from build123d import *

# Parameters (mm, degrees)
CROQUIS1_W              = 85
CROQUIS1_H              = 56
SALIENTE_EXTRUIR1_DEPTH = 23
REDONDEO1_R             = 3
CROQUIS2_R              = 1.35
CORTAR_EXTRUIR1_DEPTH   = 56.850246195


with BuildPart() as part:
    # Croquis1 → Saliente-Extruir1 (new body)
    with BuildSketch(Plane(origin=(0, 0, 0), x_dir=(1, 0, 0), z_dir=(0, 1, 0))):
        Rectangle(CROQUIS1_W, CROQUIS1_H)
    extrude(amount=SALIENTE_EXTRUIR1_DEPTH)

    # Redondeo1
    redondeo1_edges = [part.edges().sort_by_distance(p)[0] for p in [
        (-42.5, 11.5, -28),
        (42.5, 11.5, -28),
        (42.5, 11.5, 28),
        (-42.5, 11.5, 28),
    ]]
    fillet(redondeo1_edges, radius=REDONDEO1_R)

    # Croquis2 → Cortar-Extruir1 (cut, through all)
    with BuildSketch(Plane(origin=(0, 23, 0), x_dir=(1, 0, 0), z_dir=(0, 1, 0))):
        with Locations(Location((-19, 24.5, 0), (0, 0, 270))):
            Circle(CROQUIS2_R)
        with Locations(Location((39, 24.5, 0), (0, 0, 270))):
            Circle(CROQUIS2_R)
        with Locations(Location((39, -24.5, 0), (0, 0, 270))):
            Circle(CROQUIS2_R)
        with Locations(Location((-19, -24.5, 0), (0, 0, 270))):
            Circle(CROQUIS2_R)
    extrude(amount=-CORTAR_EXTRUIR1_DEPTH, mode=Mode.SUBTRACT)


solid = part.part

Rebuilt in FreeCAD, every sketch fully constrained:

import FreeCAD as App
import Part
import Sketcher


def edges_at(feature, points):
    """Names of the edges that pass closest to the given points."""
    edges = feature.Shape.Edges
    near = lambda p: min(range(len(edges)), key=lambda i: edges[i].distToShape(Part.Vertex(*p))[0])
    return sorted({f"Edge{near(p) + 1}" for p in points})

doc = App.newDocument("Part")
body = doc.addObject("PartDesign::Body", "Body")

sketch1 = body.newObject("Sketcher::SketchObject", "Sketch")
sketch1.AttachmentSupport = (doc.getObject("XZ_Plane"), [""])
sketch1.MapMode = "FlatFace"
sketch1.addGeometry(Part.LineSegment(App.Vector(-42, -28, 0), App.Vector(-42, 28, 0)), False)
sketch1.addGeometry(Part.LineSegment(App.Vector(-42, 28, 0), App.Vector(42, 28, 0)), False)
sketch1.addGeometry(Part.LineSegment(App.Vector(42, 28, 0), App.Vector(42, -28, 0)), False)
sketch1.addGeometry(Part.LineSegment(App.Vector(42, -28, 0), App.Vector(-42, -28, 0)), False)
sketch1.addConstraint(Sketcher.Constraint("Coincident", 0, 2, 1, 1))
sketch1.addConstraint(Sketcher.Constraint("Coincident", 1, 2, 2, 1))
sketch1.addConstraint(Sketcher.Constraint("Coincident", 2, 2, 3, 1))
sketch1.addConstraint(Sketcher.Constraint("Coincident", 3, 2, 0, 1))
sketch1.addConstraint(Sketcher.Constraint("Vertical", 0))
sketch1.addConstraint(Sketcher.Constraint("Horizontal", 1))
sketch1.addConstraint(Sketcher.Constraint("Vertical", 2))
sketch1.addConstraint(Sketcher.Constraint("Horizontal", 3))
sketch1.addConstraint(Sketcher.Constraint("Symmetric", 0, 2, 2, 2, -1, 1))
sketch1.addConstraint(Sketcher.Constraint("DistanceX", 1, 1, 1, 2, 85.0))
sketch1.addConstraint(Sketcher.Constraint("DistanceY", 0, 1, 0, 2, 56.0))
pad1 = body.newObject("PartDesign::Pad", "Pad")
pad1.Profile = sketch1
pad1.Length = 23
pad1.Reversed = True
doc.recompute()

fillet = body.newObject("PartDesign::Fillet", "Fillet")
fillet.Base = (pad1, edges_at(pad1, [
    (-42.5, 11.5, -28),
    (42.5, 11.5, -28),
    (42.5, 11.5, 28),
    (-42.5, 11.5, 28),
]))
fillet.Radius = 3

sketch2 = body.newObject("Sketcher::SketchObject", "Sketch001")
sketch2.AttachmentSupport = (doc.getObject("XZ_Plane"), [""])
sketch2.MapMode = "FlatFace"
sketch2.AttachmentOffset = App.Placement(App.Vector(0, 0, -23), App.Rotation())
sketch2.addGeometry(Part.Circle(App.Vector(-19, -24.5, 0), App.Vector(0, 0, 1), 1.4), False)
sketch2.addGeometry(Part.Circle(App.Vector(39, -24.5, 0), App.Vector(0, 0, 1), 1.4), False)
sketch2.addGeometry(Part.Circle(App.Vector(39, 24.5, 0), App.Vector(0, 0, 1), 1.4), False)
sketch2.addGeometry(Part.Circle(App.Vector(-19, 24.5, 0), App.Vector(0, 0, 1), 1.4), False)
sketch2.addConstraint(Sketcher.Constraint("Equal", 0, 1))
sketch2.addConstraint(Sketcher.Constraint("Equal", 1, 2))
sketch2.addConstraint(Sketcher.Constraint("Equal", 2, 3))
sketch2.addConstraint(Sketcher.Constraint("Symmetric", 1, 3, 2, 3, -1))
sketch2.addConstraint(Sketcher.Constraint("Symmetric", 0, 3, 3, 3, -1))
sketch2.addConstraint(Sketcher.Constraint("Horizontal", 0, 3, 1, 3))
sketch2.addConstraint(Sketcher.Constraint("Diameter", 0, 2.7))
sketch2.addConstraint(Sketcher.Constraint("DistanceX", 0, 3, -1, 1, 19.0))
sketch2.addConstraint(Sketcher.Constraint("DistanceX", -1, 1, 1, 3, 39.0))
sketch2.addConstraint(Sketcher.Constraint("DistanceY", 1, 3, 2, 3, 49.0))
pocket1 = body.newObject("PartDesign::Pocket", "Pocket")
pocket1.Profile = sketch2
pocket1.Type = "ThroughAll"
pocket1.Reversed = True

doc.recompute()
